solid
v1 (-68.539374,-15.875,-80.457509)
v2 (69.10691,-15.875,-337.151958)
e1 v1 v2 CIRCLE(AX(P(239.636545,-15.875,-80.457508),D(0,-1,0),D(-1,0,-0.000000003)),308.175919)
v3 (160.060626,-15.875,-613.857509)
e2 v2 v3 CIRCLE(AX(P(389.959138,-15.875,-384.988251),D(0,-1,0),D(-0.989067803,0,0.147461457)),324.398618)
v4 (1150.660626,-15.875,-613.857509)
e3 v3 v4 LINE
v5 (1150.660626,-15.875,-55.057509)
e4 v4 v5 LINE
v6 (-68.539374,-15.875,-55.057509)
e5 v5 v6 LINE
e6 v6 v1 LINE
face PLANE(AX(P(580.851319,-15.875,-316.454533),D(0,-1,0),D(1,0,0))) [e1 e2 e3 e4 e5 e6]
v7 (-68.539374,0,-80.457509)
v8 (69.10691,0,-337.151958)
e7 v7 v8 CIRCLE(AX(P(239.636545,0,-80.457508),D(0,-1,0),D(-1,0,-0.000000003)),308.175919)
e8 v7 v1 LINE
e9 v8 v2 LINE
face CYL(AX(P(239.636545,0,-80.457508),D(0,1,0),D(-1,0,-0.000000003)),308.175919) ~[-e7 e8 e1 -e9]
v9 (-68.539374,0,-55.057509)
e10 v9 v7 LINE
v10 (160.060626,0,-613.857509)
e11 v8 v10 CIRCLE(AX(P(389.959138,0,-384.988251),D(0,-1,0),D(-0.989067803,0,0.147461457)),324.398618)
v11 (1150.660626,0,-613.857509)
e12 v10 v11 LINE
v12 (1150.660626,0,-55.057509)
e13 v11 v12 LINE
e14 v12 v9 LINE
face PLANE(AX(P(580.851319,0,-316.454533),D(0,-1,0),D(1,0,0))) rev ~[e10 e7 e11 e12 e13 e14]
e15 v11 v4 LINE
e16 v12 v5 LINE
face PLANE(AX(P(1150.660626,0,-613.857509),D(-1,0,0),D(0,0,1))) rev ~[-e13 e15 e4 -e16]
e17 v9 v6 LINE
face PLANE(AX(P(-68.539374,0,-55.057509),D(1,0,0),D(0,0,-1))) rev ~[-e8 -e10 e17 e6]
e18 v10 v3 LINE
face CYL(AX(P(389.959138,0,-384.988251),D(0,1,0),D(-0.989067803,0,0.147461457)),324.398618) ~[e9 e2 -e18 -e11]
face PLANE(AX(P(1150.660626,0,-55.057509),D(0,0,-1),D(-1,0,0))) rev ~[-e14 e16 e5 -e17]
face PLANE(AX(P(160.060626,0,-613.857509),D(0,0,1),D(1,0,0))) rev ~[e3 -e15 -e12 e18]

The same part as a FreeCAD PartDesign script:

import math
import FreeCAD as App
import Part
import Sketcher
from FreeCAD import Vector
Q = App.Units.Quantity

doc = App.newDocument("Part")
params = doc.addObject("Spreadsheet::Sheet", "Params")
for row, (alias, value) in enumerate([
    ("sketch1_width", "48 in"),
    ("sketch1_width2", "39 in"),
    ("sketch1_height", "1 in"),
    ("sketch1_height2", "22 in"),
    ("pad1_length", "0.625 in"),
], start=1):
    params.set(f"A{row}", alias)
    params.set(f"B{row}", "=" + value)
    params.setAlias(f"B{row}", alias)

body = doc.addObject("PartDesign::Body", "Body")

# Sketch on XZ plane
sketch1 = body.newObject("Sketcher::SketchObject", "Sketch")
sketch1.AttachmentSupport = (doc.getObject("XZ_Plane"), [""])
sketch1.MapMode = "FlatFace"
sketch1.addGeometry([
    Part.LineSegment(Vector(1151, -55, 0), Vector(-69, -55, 0)),  # 0
    Part.LineSegment(Vector(-69, -55, 0), Vector(-69, -80, 0)),  # 1
    Part.ArcOfCircle(Part.Circle(Vector(240, -80, 0), Vector(0, 0, 1), 308), math.radians(-180), math.radians(-124)),  # 2
    Part.ArcOfCircle(Part.Circle(Vector(390, -385, 0), Vector(0, 0, 1), 324), math.radians(172), math.radians(225)),  # 3
    Part.LineSegment(Vector(160, -614, 0), Vector(1151, -614, 0)),  # 4
    Part.LineSegment(Vector(1151, -614, 0), Vector(1151, -55, 0)),  # 5
], False)
sketch1.addConstraint([
    Sketcher.Constraint("Coincident", 0, 2, 1, 1),
    Sketcher.Constraint("Tangent", 1, 2, 2, 1),
    Sketcher.Constraint("Coincident", 2, 2, 3, 1),
    Sketcher.Constraint("Coincident", 3, 2, 4, 1),
    Sketcher.Constraint("Coincident", 4, 2, 5, 1),
    Sketcher.Constraint("Coincident", 5, 2, 0, 1),
    Sketcher.Constraint("Horizontal", 0),
    Sketcher.Constraint("Vertical", 1),
    Sketcher.Constraint("Horizontal", 4),
    Sketcher.Constraint("Vertical", 5),
    Sketcher.Constraint("DistanceX", 0, 2, 0, 1, Q("48 in")),
    Sketcher.Constraint("DistanceX", 4, 1, 4, 2, Q("39 in")),
    Sketcher.Constraint("DistanceY", 1, 2, 1, 1, Q("1 in")),
    Sketcher.Constraint("DistanceY", 5, 1, 5, 2, Q("22 in")),
    Sketcher.Constraint("Radius", 2, Q("308.175919 mm")),
    Sketcher.Constraint("Radius", 3, Q("324.398618 mm")),
    Sketcher.Constraint("DistanceY", 2, 3, -1, 1, Q("80.457508 mm")),
    Sketcher.Constraint("DistanceX", -1, 1, 3, 3, Q("389.959138 mm")),
    Sketcher.Constraint("DistanceY", 3, 3, -1, 1, Q("384.988251 mm")),
])
sketch1.setExpression("Constraints[10]", "Params.sketch1_width")
sketch1.setExpression("Constraints[11]", "Params.sketch1_width2")
sketch1.setExpression("Constraints[12]", "Params.sketch1_height")
sketch1.setExpression("Constraints[13]", "Params.sketch1_height2")
pad1 = body.newObject("PartDesign::Pad", "Pad")
pad1.Profile = sketch1
pad1.setExpression("Length", "Params.pad1_length")

doc.recompute()
